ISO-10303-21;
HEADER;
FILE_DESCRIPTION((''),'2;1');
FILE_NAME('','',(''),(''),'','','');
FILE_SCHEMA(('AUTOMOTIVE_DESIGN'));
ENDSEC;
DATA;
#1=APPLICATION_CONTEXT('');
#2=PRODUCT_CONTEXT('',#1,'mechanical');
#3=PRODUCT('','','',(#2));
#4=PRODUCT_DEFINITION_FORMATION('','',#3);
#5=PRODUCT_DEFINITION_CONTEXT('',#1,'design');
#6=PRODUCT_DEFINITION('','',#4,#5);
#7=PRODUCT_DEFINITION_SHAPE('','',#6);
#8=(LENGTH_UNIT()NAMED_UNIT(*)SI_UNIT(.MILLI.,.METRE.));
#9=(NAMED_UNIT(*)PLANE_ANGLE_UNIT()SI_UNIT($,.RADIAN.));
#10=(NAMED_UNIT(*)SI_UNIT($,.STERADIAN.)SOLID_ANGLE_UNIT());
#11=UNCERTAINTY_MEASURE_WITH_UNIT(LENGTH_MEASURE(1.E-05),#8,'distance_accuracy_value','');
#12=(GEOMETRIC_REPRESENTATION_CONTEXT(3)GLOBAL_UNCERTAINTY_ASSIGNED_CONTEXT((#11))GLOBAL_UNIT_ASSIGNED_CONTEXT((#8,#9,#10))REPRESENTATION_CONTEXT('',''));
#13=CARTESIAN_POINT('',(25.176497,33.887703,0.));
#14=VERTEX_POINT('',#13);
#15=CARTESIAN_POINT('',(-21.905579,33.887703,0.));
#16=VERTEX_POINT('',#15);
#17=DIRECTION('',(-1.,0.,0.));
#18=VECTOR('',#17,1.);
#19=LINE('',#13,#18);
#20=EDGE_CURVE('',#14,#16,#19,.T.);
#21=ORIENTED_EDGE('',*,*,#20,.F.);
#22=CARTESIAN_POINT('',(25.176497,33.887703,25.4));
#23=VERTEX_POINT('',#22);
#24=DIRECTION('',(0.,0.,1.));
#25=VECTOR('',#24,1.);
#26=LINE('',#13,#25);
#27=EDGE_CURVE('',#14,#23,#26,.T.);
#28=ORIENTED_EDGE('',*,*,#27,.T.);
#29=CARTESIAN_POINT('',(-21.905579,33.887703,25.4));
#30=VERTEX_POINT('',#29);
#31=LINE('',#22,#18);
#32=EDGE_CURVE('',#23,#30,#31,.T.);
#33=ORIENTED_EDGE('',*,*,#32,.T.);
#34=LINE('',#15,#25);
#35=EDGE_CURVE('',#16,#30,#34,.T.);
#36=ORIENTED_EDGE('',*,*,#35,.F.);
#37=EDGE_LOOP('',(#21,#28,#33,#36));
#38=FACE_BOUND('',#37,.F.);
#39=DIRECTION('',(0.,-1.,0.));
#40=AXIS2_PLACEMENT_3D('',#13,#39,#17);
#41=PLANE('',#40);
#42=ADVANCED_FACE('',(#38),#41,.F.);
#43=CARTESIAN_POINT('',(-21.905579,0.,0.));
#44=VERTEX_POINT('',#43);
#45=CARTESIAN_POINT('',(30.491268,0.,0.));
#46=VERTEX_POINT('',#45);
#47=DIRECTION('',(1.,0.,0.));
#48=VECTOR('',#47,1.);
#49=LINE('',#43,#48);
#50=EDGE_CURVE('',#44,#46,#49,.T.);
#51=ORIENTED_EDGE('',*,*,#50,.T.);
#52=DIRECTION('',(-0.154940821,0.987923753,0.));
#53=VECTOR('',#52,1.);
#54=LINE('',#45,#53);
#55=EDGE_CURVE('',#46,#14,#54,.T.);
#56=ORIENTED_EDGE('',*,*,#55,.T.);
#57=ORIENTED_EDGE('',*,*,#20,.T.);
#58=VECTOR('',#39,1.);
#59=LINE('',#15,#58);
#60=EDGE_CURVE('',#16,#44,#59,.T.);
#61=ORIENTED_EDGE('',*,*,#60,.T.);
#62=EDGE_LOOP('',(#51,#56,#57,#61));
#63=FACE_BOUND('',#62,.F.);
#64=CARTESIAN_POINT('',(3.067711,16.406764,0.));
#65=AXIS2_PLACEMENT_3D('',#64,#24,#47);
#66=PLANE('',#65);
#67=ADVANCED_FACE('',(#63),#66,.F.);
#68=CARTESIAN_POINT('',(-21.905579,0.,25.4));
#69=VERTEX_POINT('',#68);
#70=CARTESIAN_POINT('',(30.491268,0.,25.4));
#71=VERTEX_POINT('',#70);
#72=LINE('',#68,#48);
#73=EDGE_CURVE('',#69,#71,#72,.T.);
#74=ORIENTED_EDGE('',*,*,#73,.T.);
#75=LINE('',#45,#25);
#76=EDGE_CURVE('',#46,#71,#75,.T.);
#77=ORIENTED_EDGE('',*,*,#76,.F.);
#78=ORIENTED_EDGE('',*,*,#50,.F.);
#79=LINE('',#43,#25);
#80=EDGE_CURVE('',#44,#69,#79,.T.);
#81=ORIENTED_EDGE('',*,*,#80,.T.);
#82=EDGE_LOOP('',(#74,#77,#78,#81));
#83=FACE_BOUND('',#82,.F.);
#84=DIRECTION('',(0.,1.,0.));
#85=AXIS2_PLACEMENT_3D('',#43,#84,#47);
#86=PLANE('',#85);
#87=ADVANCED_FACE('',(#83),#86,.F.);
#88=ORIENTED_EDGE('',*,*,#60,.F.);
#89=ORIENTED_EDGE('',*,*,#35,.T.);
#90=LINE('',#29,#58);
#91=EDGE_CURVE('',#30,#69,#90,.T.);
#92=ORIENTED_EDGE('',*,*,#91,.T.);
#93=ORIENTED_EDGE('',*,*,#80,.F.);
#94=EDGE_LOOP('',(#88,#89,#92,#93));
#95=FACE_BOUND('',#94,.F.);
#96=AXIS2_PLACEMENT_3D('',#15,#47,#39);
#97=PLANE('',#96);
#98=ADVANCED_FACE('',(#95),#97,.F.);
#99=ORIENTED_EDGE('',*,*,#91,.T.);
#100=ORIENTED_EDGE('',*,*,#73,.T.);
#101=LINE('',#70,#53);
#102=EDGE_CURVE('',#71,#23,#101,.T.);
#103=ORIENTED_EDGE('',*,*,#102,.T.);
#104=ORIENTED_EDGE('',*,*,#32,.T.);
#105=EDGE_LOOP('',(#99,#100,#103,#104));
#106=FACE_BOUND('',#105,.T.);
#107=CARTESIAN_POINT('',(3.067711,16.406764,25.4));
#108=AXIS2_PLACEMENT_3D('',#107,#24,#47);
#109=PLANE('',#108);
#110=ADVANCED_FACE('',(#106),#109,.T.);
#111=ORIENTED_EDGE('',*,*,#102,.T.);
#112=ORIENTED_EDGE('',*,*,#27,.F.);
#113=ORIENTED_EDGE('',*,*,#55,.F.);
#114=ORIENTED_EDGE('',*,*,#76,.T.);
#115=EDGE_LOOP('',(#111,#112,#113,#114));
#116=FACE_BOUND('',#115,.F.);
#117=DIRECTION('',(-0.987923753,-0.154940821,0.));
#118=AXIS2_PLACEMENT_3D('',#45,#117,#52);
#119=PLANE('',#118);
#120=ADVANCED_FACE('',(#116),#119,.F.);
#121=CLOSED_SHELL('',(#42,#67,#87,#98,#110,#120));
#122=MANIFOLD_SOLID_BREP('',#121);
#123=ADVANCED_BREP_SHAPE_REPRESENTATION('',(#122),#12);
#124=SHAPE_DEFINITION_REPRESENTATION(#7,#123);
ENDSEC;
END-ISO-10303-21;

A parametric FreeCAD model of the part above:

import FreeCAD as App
import Part
import Sketcher

V = App.Vector
Q = App.Units.Quantity

doc = App.newDocument("Part")
body = doc.addObject("PartDesign::Body", "Body")

# Sketch on XY plane
sketch1 = body.newObject("Sketcher::SketchObject", "Sketch")
sketch1.AttachmentSupport = (doc.getObject("XY_Plane"), [""])
sketch1.MapMode = "FlatFace"
sketch1.addGeometry([
    Part.LineSegment(V(25, 34, 0), V(-22, 34, 0)),
    Part.LineSegment(V(-22, 34, 0), V(-22, 0, 0)),
    Part.LineSegment(V(-22, 0, 0), V(30, 0, 0)),
    Part.LineSegment(V(30, 0, 0), V(25, 34, 0)),
], False)
sketch1.addConstraint([
    Sketcher.Constraint("Coincident", 0, 2, 1, 1),
    Sketcher.Constraint("Coincident", 1, 2, 2, 1),
    Sketcher.Constraint("Coincident", 2, 2, 3, 1),
    Sketcher.Constraint("Coincident", 3, 2, 0, 1),
    Sketcher.Constraint("Horizontal", 0),
    Sketcher.Constraint("Vertical", 1),
    Sketcher.Constraint("Horizontal", 2),
    Sketcher.Constraint("PointOnObject", 1, 2, -1),
    Sketcher.Constraint("Distance", 3, Q("34.301942 mm")),
    Sketcher.Constraint("DistanceX", 0, 2, 0, 1, Q("47.082076 mm")),
    Sketcher.Constraint("DistanceX", 2, 1, 2, 2, Q("52.396847 mm")),
    Sketcher.Constraint("DistanceX", 0, 2, -1, 1, Q("21.905579 mm")),
])
pad1 = body.newObject("PartDesign::Pad", "Pad")
pad1.Profile = sketch1
pad1.Length = Q("1 in")

# Sketch on XY plane
sketch2 = body.newObject("Sketcher::SketchObject", "Sketch001")
sketch2.AttachmentSupport = (doc.getObject("XY_Plane"), [""])
sketch2.MapMode = "FlatFace"
sketch2.AttachmentOffset = App.Placement(V(0, 0, 1 * 25.4), App.Rotation())
sketch2.addGeometry([
    Part.LineSegment(V(6.103317, 9.773111, 0), V(12.124575, 20.296989, 0)),  # 0
    Part.LineSegment(V(12.124575, 20.296989, 0), V(6.021258, 30.773491, 0)),  # 1
    Part.LineSegment(V(6.021258, 30.773491, 0), V(-6.103317, 30.726114, 0)),  # 2
    Part.LineSegment(V(-6.103317, 30.726114, 0), V(-12.124575, 20.202236, 0)),  # 3
    Part.LineSegment(V(-12.124575, 20.202236, 0), V(-6.021258, 9.725734, 0)),  # 4
    Part.LineSegment(V(-6.021258, 9.725734, 0), V(6.103317, 9.773111, 0)),  # 5
], False)
sketch2.addConstraint([
    Sketcher.Constraint("Coincident", 0, 2, 1, 1),
    Sketcher.Constraint("Coincident", 1, 2, 2, 1),
    Sketcher.Constraint("Coincident", 2, 2, 3, 1),
    Sketcher.Constraint("Coincident", 3, 2, 4, 1),
    Sketcher.Constraint("Coincident", 4, 2, 5, 1),
    Sketcher.Constraint("Coincident", 5, 2, 0, 1),
    Sketcher.Constraint("DistanceY", -1, 1, 0, 2, Q("20.296989 mm")),
    Sketcher.Constraint("DistanceX", -1, 1, 1, 2, Q("6.021258 mm")),
    Sketcher.Constraint("DistanceY", -1, 1, 1, 2, Q("30.773491 mm")),
    Sketcher.Constraint("DistanceX", 4, 2, -1, 1, Q("6.021258 mm")),
    Sketcher.Constraint("DistanceY", -1, 1, 5, 2, Q("9.773111 mm")),
    Sketcher.Constraint("DistanceX", 3, 2, 2, 2, Q("6.021258 mm")),
    Sketcher.Constraint("DistanceX", 3, 2, 0, 2, Q("24.24915 mm")),
    Sketcher.Constraint("DistanceX", 2, 2, 4, 2, Q("0.082059 mm")),
    Sketcher.Constraint("DistanceY", 4, 2, 2, 2, Q("21.00038 mm")),
    Sketcher.Constraint("DistanceX", 5, 2, 0, 2, Q("6.021258 mm")),
    Sketcher.Constraint("Distance", 3, Q("12.124667 mm")),
    Sketcher.Constraint("DistanceY", -1, 1, 2, 2, Q("30.726114 mm")),
])
pad2 = body.newObject("PartDesign::Pad", "Pad001")
pad2.Profile = sketch2
pad2.Length = Q("1 in")
pad2.Reversed = True

doc.recompute()
